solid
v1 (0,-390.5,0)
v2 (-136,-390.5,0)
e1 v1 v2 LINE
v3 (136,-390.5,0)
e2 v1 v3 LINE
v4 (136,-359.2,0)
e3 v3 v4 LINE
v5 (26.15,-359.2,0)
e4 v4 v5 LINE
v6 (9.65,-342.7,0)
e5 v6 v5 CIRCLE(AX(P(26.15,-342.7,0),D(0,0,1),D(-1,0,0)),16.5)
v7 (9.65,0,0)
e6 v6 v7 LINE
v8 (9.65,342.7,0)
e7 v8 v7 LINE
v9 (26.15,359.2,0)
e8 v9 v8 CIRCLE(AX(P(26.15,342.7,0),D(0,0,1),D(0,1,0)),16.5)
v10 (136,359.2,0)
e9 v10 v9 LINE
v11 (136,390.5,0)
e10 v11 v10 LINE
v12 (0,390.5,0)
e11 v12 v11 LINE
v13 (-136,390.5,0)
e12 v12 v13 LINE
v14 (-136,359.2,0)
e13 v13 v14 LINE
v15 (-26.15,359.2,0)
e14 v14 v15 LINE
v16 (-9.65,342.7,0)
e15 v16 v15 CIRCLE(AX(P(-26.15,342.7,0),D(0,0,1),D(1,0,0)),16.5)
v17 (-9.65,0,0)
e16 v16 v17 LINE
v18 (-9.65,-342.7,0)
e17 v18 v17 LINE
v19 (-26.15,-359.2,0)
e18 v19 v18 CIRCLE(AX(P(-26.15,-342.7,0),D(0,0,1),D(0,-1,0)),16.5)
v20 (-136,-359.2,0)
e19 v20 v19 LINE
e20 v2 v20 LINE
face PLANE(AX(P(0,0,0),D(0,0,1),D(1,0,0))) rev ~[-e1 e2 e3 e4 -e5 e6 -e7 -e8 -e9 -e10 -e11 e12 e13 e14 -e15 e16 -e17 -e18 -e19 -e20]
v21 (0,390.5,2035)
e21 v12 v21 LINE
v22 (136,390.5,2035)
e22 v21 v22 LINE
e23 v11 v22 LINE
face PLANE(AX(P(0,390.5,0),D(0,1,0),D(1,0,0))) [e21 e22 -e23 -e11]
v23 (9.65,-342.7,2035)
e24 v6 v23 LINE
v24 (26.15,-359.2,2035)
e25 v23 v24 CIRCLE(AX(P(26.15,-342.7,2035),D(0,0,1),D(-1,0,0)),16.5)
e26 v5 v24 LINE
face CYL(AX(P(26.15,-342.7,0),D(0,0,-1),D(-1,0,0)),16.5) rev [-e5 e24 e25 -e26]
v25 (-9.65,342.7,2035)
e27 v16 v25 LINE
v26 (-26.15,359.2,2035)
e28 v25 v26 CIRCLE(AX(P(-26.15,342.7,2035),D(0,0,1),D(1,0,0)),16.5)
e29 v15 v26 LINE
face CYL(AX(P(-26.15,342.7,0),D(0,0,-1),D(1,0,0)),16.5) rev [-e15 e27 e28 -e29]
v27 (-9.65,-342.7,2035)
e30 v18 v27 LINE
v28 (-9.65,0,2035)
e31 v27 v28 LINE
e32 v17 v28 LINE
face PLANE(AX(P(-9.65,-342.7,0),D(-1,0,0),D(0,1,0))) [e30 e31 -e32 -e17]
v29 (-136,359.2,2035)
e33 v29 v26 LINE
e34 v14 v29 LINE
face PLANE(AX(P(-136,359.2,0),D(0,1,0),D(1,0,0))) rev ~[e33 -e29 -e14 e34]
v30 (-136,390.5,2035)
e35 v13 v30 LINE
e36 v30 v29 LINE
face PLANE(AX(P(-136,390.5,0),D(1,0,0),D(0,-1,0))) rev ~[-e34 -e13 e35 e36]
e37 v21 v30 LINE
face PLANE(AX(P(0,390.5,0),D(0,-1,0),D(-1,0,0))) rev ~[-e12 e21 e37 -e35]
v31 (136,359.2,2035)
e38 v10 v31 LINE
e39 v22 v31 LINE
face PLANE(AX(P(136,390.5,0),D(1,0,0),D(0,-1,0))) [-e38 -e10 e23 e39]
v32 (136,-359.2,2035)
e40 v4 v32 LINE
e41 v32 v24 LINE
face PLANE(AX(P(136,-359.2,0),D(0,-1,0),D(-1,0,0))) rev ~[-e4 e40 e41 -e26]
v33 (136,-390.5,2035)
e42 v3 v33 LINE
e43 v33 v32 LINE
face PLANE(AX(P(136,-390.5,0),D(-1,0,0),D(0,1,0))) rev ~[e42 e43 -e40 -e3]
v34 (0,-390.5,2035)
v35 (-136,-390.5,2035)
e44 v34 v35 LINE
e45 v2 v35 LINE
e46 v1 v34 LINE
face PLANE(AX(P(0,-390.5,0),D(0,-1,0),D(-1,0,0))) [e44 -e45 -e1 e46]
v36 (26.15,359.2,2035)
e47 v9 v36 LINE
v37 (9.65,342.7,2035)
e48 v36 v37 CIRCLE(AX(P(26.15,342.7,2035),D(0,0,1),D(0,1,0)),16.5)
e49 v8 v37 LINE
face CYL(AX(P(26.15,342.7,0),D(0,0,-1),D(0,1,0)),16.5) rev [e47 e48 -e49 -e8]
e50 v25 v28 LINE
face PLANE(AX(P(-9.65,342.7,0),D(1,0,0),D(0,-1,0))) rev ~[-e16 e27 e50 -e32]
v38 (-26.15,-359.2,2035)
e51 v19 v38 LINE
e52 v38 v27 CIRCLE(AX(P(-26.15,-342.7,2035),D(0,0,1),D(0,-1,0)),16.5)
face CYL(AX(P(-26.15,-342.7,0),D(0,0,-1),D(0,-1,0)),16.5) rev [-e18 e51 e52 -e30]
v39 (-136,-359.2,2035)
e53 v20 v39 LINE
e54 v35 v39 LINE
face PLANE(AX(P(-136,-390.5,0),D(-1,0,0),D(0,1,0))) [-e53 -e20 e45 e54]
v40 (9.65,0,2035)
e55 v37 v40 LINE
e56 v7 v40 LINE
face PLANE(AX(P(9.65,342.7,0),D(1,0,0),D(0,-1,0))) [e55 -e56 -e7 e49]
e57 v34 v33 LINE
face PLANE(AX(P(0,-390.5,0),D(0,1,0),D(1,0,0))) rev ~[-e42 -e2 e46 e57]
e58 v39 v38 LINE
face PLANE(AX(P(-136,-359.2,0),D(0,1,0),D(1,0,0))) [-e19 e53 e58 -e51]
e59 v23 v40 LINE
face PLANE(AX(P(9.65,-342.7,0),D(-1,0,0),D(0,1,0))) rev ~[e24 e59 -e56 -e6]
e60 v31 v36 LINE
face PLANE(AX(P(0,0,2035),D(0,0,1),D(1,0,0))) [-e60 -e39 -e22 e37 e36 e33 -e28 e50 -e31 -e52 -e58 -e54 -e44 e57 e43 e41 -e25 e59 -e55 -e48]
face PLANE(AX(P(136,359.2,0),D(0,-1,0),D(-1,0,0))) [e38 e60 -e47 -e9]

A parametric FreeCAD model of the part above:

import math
import FreeCAD as App
import Part
import Sketcher
Q = App.Units.Quantity

doc = App.newDocument("Part")
body = doc.addObject("PartDesign::Body", "Body")

# Sketch on XY plane
sketch1 = body.newObject("Sketcher::SketchObject", "Sketch")
sketch1.AttachmentSupport = (doc.getObject("XY_Plane"), [""])
sketch1.MapMode = "FlatFace"
sketch1.addGeometry([
    Part.LineSegment(App.Vector(-136, -359.2, 0), App.Vector(-136, -390.5, 0)),  # 0
    Part.LineSegment(App.Vector(-136, -390.5, 0), App.Vector(136, -390.5, 0)),  # 1
    Part.LineSegment(App.Vector(136, -390.5, 0), App.Vector(136, -359.2, 0)),  # 2
    Part.LineSegment(App.Vector(136, -359.2, 0), App.Vector(26.15, -359.2, 0)),  # 3
    Part.ArcOfCircle(Part.Circle(App.Vector(26.15, -342.7, 0), App.Vector(0, 0, 1), 16.5), math.radians(180), math.radians(270)),  # 4
    Part.LineSegment(App.Vector(9.65, -342.7, 0), App.Vector(9.65, 342.7, 0)),  # 5
    Part.ArcOfCircle(Part.Circle(App.Vector(26.15, 342.7, 0), App.Vector(0, 0, 1), 16.5), math.radians(90), math.radians(180)),  # 6
    Part.LineSegment(App.Vector(26.15, 359.2, 0), App.Vector(136, 359.2, 0)),  # 7
    Part.LineSegment(App.Vector(136, 359.2, 0), App.Vector(136, 390.5, 0)),  # 8
    Part.LineSegment(App.Vector(136, 390.5, 0), App.Vector(-136, 390.5, 0)),  # 9
    Part.LineSegment(App.Vector(-136, 390.5, 0), App.Vector(-136, 359.2, 0)),  # 10
    Part.LineSegment(App.Vector(-136, 359.2, 0), App.Vector(-26.15, 359.2, 0)),  # 11
    Part.ArcOfCircle(Part.Circle(App.Vector(-26.15, 342.7, 0), App.Vector(0, 0, 1), 16.5), math.radians(0), math.radians(90)),  # 12
    Part.LineSegment(App.Vector(-9.65, 342.7, 0), App.Vector(-9.65, -342.7, 0)),  # 13
    Part.ArcOfCircle(Part.Circle(App.Vector(-26.15, -342.7, 0), App.Vector(0, 0, 1), 16.5), math.radians(-90), math.radians(0)),  # 14
    Part.LineSegment(App.Vector(-26.15, -359.2, 0), App.Vector(-136, -359.2, 0)),  # 15
], False)
sketch1.addConstraint([
    Sketcher.Constraint("Coincident", 0, 2, 1, 1),
    Sketcher.Constraint("Coincident", 1, 2, 2, 1),
    Sketcher.Constraint("Coincident", 2, 2, 3, 1),
    Sketcher.Constraint("Tangent", 3, 2, 4, 2),
    Sketcher.Constraint("Tangent", 4, 1, 5, 1),
    Sketcher.Constraint("Tangent", 5, 2, 6, 2),
    Sketcher.Constraint("Tangent", 6, 1, 7, 1),
    Sketcher.Constraint("Coincident", 7, 2, 8, 1),
    Sketcher.Constraint("Coincident", 8, 2, 9, 1),
    Sketcher.Constraint("Coincident", 9, 2, 10, 1),
    Sketcher.Constraint("Coincident", 10, 2, 11, 1),
    Sketcher.Constraint("Tangent", 11, 2, 12, 2),
    Sketcher.Constraint("Tangent", 12, 1, 13, 1),
    Sketcher.Constraint("Tangent", 13, 2, 14, 2),
    Sketcher.Constraint("Tangent", 14, 1, 15, 1),
    Sketcher.Constraint("Coincident", 15, 2, 0, 1),
    Sketcher.Constraint("Vertical", 0),
    Sketcher.Constraint("Horizontal", 1),
    Sketcher.Constraint("Vertical", 2),
    Sketcher.Constraint("Horizontal", 3),
    Sketcher.Constraint("Vertical", 5),
    Sketcher.Constraint("Horizontal", 7),
    Sketcher.Constraint("Vertical", 8),
    Sketcher.Constraint("Horizontal", 9),
    Sketcher.Constraint("Vertical", 10),
    Sketcher.Constraint("Horizontal", 11),
    Sketcher.Constraint("Vertical", 13),
    Sketcher.Constraint("Horizontal", 15),
    Sketcher.Constraint("Equal", 4, 6),
    Sketcher.Constraint("Equal", 6, 12),
    Sketcher.Constraint("Equal", 12, 14),
    Sketcher.Constraint("Symmetric", 4, 3, 12, 3, -1, 1),
    Sketcher.Constraint("Symmetric", 0, 2, 8, 2, -1, 1),
    Sketcher.Constraint("Symmetric", 7, 2, 10, 2, -2),
    Sketcher.Constraint("Symmetric", 2, 2, 15, 2, -2),
    Sketcher.Constraint("Radius", 4, Q("16.5 mm")),
    Sketcher.Constraint("DistanceY", 0, 2, 0, 1, Q("31.3 mm")),
    Sketcher.Constraint("DistanceX", 0, 2, -1, 1, Q("136 mm")),
    Sketcher.Constraint("DistanceY", 0, 2, -1, 1, Q("390.5 mm")),
    Sketcher.Constraint("DistanceX", -1, 1, 4, 1, Q("9.65 mm")),
])
pad1 = body.newObject("PartDesign::Pad", "Pad")
pad1.Profile = sketch1
pad1.Length = 2035

doc.recompute()
